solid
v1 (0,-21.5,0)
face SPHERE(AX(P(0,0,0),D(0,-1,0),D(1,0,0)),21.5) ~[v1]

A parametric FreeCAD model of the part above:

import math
import FreeCAD as App
import Part
import Sketcher
Q = App.Units.Quantity

doc = App.newDocument("Part")
body = doc.addObject("PartDesign::Body", "Body")

# Sketch on XY plane
sketch1 = body.newObject("Sketcher::SketchObject", "Sketch")
sketch1.AttachmentSupport = (doc.getObject("XY_Plane"), [""])
sketch1.MapMode = "FlatFace"
sketch1.addGeometry(Part.LineSegment(App.Vector(0, 22, 0), App.Vector(0, -22, 0)), False)
sketch1.addGeometry(Part.ArcOfCircle(Part.Circle(App.Vector(0, 0, 0), App.Vector(0, 0, 1), 22), math.radians(-90), math.radians(90)), False)
sketch1.addConstraint(Sketcher.Constraint("Coincident", 0, 1, 1, 2))
sketch1.addConstraint(Sketcher.Constraint("Coincident", 1, 1, 0, 2))
sketch1.addConstraint(Sketcher.Constraint("Vertical", 0))
sketch1.addConstraint(Sketcher.Constraint("Coincident", 1, 3, -1, 1))
sketch1.addConstraint(Sketcher.Constraint("PointOnObject", 0, 1, -2))
sketch1.addConstraint(Sketcher.Constraint("Radius", 1, Q("21.5 mm")))
revolution = body.newObject("PartDesign::Revolution", "Revolution")
revolution.Profile = sketch1
revolution.ReferenceAxis = (sketch1, ["V_Axis"])
revolution.Angle = 360

doc.recompute()
